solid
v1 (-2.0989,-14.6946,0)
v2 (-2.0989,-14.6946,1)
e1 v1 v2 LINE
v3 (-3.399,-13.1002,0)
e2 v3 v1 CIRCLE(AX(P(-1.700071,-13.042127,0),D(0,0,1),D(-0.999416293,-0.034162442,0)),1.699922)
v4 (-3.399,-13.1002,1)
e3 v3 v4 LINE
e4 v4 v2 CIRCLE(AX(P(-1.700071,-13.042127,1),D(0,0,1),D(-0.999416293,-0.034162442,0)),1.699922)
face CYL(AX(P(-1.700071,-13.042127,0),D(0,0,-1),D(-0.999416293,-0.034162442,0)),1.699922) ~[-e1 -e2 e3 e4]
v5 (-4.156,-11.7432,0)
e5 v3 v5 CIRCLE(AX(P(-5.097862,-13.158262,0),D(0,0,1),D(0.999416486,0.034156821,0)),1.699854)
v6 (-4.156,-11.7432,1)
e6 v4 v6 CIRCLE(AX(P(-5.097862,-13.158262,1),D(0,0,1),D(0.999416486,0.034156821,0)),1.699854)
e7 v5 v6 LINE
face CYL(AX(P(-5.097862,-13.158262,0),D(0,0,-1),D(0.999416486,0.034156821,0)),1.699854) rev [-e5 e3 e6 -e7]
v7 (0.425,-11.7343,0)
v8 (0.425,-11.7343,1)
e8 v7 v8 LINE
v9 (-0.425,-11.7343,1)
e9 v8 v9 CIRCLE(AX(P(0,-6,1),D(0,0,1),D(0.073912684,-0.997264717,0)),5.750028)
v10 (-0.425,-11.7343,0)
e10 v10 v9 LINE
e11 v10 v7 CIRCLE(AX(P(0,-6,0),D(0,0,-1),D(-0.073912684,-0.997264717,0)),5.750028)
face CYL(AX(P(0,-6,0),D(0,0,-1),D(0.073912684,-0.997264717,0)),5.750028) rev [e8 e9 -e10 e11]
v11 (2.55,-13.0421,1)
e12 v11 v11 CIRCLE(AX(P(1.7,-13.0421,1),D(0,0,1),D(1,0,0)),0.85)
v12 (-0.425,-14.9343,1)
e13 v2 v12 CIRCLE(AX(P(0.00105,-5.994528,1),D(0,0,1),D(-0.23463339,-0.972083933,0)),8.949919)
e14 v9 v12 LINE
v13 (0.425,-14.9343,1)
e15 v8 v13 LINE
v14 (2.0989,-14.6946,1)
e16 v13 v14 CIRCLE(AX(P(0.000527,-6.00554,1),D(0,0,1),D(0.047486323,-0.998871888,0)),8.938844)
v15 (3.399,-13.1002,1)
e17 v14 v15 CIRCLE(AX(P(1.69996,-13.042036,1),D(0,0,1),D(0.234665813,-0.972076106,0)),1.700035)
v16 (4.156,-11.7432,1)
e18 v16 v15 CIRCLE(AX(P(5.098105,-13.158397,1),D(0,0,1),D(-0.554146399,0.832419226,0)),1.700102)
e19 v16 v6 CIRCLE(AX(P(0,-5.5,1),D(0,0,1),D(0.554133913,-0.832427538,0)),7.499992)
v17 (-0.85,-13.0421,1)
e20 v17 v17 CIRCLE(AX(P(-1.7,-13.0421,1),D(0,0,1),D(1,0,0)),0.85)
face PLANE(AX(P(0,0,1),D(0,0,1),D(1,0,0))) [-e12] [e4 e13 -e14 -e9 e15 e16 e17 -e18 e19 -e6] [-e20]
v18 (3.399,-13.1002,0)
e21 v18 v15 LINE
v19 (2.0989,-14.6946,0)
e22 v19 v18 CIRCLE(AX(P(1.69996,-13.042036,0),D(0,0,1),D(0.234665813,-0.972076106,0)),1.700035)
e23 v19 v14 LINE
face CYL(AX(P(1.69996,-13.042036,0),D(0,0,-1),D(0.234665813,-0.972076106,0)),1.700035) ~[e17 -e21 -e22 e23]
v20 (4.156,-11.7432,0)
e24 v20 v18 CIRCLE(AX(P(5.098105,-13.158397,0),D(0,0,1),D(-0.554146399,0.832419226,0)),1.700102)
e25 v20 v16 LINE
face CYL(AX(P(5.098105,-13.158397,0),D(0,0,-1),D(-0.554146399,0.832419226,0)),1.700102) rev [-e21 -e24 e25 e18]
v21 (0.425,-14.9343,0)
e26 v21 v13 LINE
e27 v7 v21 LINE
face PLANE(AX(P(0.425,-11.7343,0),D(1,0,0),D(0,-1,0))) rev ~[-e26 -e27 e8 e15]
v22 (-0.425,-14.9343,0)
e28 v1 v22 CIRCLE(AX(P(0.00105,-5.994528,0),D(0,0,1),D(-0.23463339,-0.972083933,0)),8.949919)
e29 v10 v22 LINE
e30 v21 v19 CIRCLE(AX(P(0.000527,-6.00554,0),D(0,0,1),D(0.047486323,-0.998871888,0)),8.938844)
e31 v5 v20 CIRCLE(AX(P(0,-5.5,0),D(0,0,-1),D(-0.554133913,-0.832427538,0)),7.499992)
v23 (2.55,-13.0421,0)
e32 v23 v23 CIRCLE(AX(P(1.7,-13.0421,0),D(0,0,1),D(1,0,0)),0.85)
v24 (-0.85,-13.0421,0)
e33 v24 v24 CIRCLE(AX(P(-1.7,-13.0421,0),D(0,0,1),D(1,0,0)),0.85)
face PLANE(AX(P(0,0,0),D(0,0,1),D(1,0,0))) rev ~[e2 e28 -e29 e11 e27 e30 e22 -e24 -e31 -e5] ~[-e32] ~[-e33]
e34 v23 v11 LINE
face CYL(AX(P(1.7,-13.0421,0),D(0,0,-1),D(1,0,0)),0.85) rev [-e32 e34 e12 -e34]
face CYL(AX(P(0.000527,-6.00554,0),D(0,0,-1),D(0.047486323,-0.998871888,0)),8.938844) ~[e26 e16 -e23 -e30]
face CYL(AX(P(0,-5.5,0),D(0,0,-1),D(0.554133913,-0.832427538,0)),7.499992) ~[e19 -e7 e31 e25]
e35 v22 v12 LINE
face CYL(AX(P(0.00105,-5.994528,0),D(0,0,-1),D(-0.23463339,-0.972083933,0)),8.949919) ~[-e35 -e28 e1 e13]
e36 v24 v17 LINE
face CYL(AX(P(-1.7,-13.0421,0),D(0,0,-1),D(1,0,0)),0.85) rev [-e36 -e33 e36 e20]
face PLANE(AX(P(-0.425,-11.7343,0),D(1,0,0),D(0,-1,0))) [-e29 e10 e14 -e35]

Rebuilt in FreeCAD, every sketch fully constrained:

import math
import FreeCAD as App
import Part
import Sketcher
from FreeCAD import Vector
Q = App.Units.Quantity

doc = App.newDocument("Part")
params = doc.addObject("Spreadsheet::Sheet", "Params")
for row, (alias, value) in enumerate([
    ("sketch1_diameter", "1.7 mm"),
    ("sketch1_diameter2", "1.7 mm"),
    ("sketch1_radius", "1.7 mm"),
    ("sketch1_radius2", "1.7 mm"),
    ("sketch1_radius3", "1.7 mm"),
    ("pad1_length", "1 mm"),
], start=1):
    params.set(f"A{row}", alias)
    params.set(f"B{row}", "=" + value)
    params.setAlias(f"B{row}", alias)

body = doc.addObject("PartDesign::Body", "Body")

sketch1 = body.newObject("Sketcher::SketchObject", "Sketch")
sketch1.AttachmentSupport = (doc.getObject("XY_Plane"), [""])
sketch1.MapMode = "FlatFace"
sketch1.addGeometry(Part.LineSegment(Vector(0.425, -11.7343, 0), Vector(0.425, -14.9343, 0)), False)
sketch1.addGeometry(Part.ArcOfCircle(Part.Circle(Vector(0.000527, -6.00554, 0), Vector(0, 0, 1), 8.938844), math.radians(-87.278211), math.radians(-76.42325)), False)
sketch1.addGeometry(Part.ArcOfCircle(Part.Circle(Vector(1.7, -13.0421, 0), Vector(0, 0, 1), 1.699964), math.radians(-76.428888), math.radians(-1.958557)), False)
sketch1.addGeometry(Part.ArcOfCircle(Part.Circle(Vector(5.098, -13.1583, 0), Vector(0, 0, 1), 1.699962), math.radians(123.650807), math.radians(178.041443)), False)
sketch1.addGeometry(Part.ArcOfCircle(Part.Circle(Vector(0, -5.5, 0), Vector(0, 0, 1), 7.499992), math.radians(-56.348918), math.radians(236.348918)), False)
sketch1.addGeometry(Part.ArcOfCircle(Part.Circle(Vector(-5.098, -13.1583, 0), Vector(0, 0, 1), 1.699993), math.radians(1.958557), math.radians(56.349193)), False)
sketch1.addGeometry(Part.ArcOfCircle(Part.Circle(Vector(-1.7, -13.0421, 0), Vector(0, 0, 1), 1.699993), math.radians(-178.041443), math.radians(-103.571112)), False)
sketch1.addGeometry(Part.ArcOfCircle(Part.Circle(Vector(0.00105, -5.994528, 0), Vector(0, 0, 1), 8.949919), math.radians(-103.570013), math.radians(-92.728526)), False)
sketch1.addGeometry(Part.LineSegment(Vector(-0.425, -14.9343, 0), Vector(-0.425, -11.7343, 0)), False)
sketch1.addGeometry(Part.ArcOfCircle(Part.Circle(Vector(0, -6, 0), Vector(0, 0, 1), 5.750028), math.radians(-85.76125), math.radians(265.76125)), False)
sketch1.addGeometry(Part.Circle(Vector(1.7, -13.0421, 0), Vector(0, 0, 1), 0.85), False)
sketch1.addGeometry(Part.Circle(Vector(-1.7, -13.0421, 0), Vector(0, 0, 1), 0.85), False)
sketch1.addConstraint(Sketcher.Constraint("Coincident", 0, 2, 1, 1))
sketch1.addConstraint(Sketcher.Constraint("Coincident", 1, 2, 2, 1))
sketch1.addConstraint(Sketcher.Constraint("Coincident", 2, 2, 3, 2))
sketch1.addConstraint(Sketcher.Constraint("Coincident", 3, 1, 4, 1))
sketch1.addConstraint(Sketcher.Constraint("Coincident", 4, 2, 5, 2))
sketch1.addConstraint(Sketcher.Constraint("Coincident", 5, 1, 6, 1))
sketch1.addConstraint(Sketcher.Constraint("Coincident", 6, 2, 7, 1))
sketch1.addConstraint(Sketcher.Constraint("Coincident", 7, 2, 8, 1))
sketch1.addConstraint(Sketcher.Constraint("Coincident", 8, 2, 9, 2))
sketch1.addConstraint(Sketcher.Constraint("Coincident", 9, 1, 0, 1))
sketch1.addConstraint(Sketcher.Constraint("Vertical", 0))
sketch1.addConstraint(Sketcher.Constraint("Vertical", 8))
sketch1.addConstraint(Sketcher.Constraint("Coincident", 10, 3, 2, 3))
sketch1.addConstraint(Sketcher.Constraint("Coincident", 11, 3, 6, 3))
sketch1.addConstraint(Sketcher.Constraint("PointOnObject", 4, 3, -2))
sketch1.addConstraint(Sketcher.Constraint("PointOnObject", 9, 3, -2))
sketch1.addConstraint(Sketcher.Constraint("Diameter", 10, Q("1.7 mm")))
sketch1.addConstraint(Sketcher.Constraint("Diameter", 11, Q("1.7 mm")))
sketch1.addConstraint(Sketcher.Constraint("Radius", 2, Q("1.7 mm")))
sketch1.addConstraint(Sketcher.Constraint("Radius", 3, Q("1.7 mm")))
sketch1.addConstraint(Sketcher.Constraint("Radius", 5, Q("1.7 mm")))
sketch1.addConstraint(Sketcher.Constraint("Radius", 6, Q("1.7 mm")))
sketch1.addConstraint(Sketcher.Constraint("Radius", 9, Q("5.75 mm")))
sketch1.addConstraint(Sketcher.Constraint("DistanceY", 0, 2, 0, 1, Q("3.2 mm")))
sketch1.addConstraint(Sketcher.Constraint("DistanceY", 8, 1, 8, 2, Q("3.2 mm")))
sketch1.addConstraint(Sketcher.Constraint("DistanceY", 9, 3, -1, 1, Q("6 mm")))
sketch1.addConstraint(Sketcher.Constraint("DistanceX", -1, 1, 2, 3, Q("1.7 mm")))
sketch1.addConstraint(Sketcher.Constraint("DistanceX", 6, 3, -1, 1, Q("1.7 mm")))
sketch1.addConstraint(Sketcher.Constraint("Radius", 4, Q("7.5 mm")))
sketch1.addConstraint(Sketcher.Constraint("DistanceY", 9, 3, 4, 3, Q("0.5 mm")))
sketch1.addConstraint(Sketcher.Constraint("Radius", 7, Q("8.95 mm")))
sketch1.addConstraint(Sketcher.Constraint("DistanceX", -1, 1, 0, 2, Q("0.425 mm")))
sketch1.addConstraint(Sketcher.Constraint("DistanceX", 7, 2, -1, 1, Q("0.425 mm")))
sketch1.addConstraint(Sketcher.Constraint("Radius", 1, Q("8.9388 mm")))
sketch1.addConstraint(Sketcher.Constraint("DistanceX", 1, 3, 2, 3, Q("1.6995 mm")))
sketch1.addConstraint(Sketcher.Constraint("DistanceX", 1, 2, 2, 2, Q("1.3 mm")))
sketch1.addConstraint(Sketcher.Constraint("DistanceX", 5, 1, 6, 2, Q("1.3 mm")))
sketch1.addConstraint(Sketcher.Constraint("DistanceX", 5, 3, -1, 1, Q("5.098 mm")))
sketch1.addConstraint(Sketcher.Constraint("DistanceX", -1, 1, 1, 2, Q("2.099 mm")))
sketch1.addConstraint(Sketcher.Constraint("DistanceX", -1, 1, 3, 1, Q("4.156 mm")))
sketch1.addConstraint(Sketcher.Constraint("DistanceX", 4, 2, -1, 1, Q("4.156 mm")))
sketch1.addConstraint(Sketcher.Constraint("DistanceX", 5, 1, -1, 1, Q("3.399 mm")))
sketch1.setExpression("Constraints[16]", "Params.sketch1_diameter")
sketch1.setExpression("Constraints[17]", "Params.sketch1_diameter2")
sketch1.setExpression("Constraints[18]", "Params.sketch1_radius")
sketch1.setExpression("Constraints[19]", "Params.sketch1_radius2")
sketch1.setExpression("Constraints[20]", "Params.sketch1_radius3")
pad1 = body.newObject("PartDesign::Pad", "Pad")
pad1.Profile = sketch1
pad1.setExpression("Length", "Params.pad1_length")

doc.recompute()
